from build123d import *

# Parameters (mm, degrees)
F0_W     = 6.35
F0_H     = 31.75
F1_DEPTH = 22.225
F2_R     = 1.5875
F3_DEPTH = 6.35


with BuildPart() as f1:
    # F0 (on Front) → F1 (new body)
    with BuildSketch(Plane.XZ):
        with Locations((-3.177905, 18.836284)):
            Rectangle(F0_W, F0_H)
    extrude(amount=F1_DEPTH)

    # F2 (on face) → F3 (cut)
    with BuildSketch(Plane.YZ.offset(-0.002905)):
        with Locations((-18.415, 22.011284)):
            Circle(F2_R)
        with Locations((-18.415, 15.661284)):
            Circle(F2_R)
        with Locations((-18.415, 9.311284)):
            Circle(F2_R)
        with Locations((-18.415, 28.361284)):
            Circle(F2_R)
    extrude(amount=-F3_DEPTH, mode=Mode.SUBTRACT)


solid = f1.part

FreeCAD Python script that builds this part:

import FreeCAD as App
import Part
import Sketcher

V = App.Vector
Q = App.Units.Quantity

doc = App.newDocument("Part")
body = doc.addObject("PartDesign::Body", "Body")

# Sketch on XZ plane
sketch1 = body.newObject("Sketcher::SketchObject", "Sketch")
sketch1.AttachmentSupport = (doc.getObject("XZ_Plane"), [""])
sketch1.MapMode = "FlatFace"
sketch1.addGeometry([
    Part.LineSegment(V(-6, 35, 0), V(-6, 3, 0)),
    Part.LineSegment(V(-6, 3, 0), V(0, 3, 0)),
    Part.LineSegment(V(0, 3, 0), V(0, 35, 0)),
    Part.LineSegment(V(0, 35, 0), V(-6, 35, 0)),
], False)
sketch1.addConstraint([
    Sketcher.Constraint("Coincident", 0, 2, 1, 1),
    Sketcher.Constraint("Coincident", 1, 2, 2, 1),
    Sketcher.Constraint("Coincident", 2, 2, 3, 1),
    Sketcher.Constraint("Coincident", 3, 2, 0, 1),
    Sketcher.Constraint("Vertical", 0),
    Sketcher.Constraint("Horizontal", 1),
    Sketcher.Constraint("Vertical", 2),
    Sketcher.Constraint("Horizontal", 3),
    Sketcher.Constraint("DistanceX", 1, 1, 1, 2, Q("0.25 in")),
    Sketcher.Constraint("DistanceY", 0, 2, 0, 1, Q("1.25 in")),
    Sketcher.Constraint("DistanceX", 0, 2, -1, 1, Q("6.352905 mm")),
    Sketcher.Constraint("DistanceY", -1, 1, 0, 2, Q("2.961284 mm")),
])
pad1 = body.newObject("PartDesign::Pad", "Pad")
pad1.Profile = sketch1
pad1.Length = Q("0.875 in")

# Sketch on YZ plane
sketch2 = body.newObject("Sketcher::SketchObject", "Sketch001")
sketch2.AttachmentSupport = (doc.getObject("YZ_Plane"), [""])
sketch2.MapMode = "FlatFace"
sketch2.AttachmentOffset = App.Placement(V(0, 0, -0.002905), App.Rotation())
sketch2.addGeometry([
    Part.Circle(V(-18.4, 22, 0), V(0, 0, 1), 1.6),
    Part.Circle(V(-18.4, 15.7, 0), V(0, 0, 1), 1.6),
    Part.Circle(V(-18.4, 9.3, 0), V(0, 0, 1), 1.6),
    Part.Circle(V(-18.4, 28.4, 0), V(0, 0, 1), 1.6),
], False)
sketch2.addConstraint([
    Sketcher.Constraint("Equal", 0, 1),
    Sketcher.Constraint("Equal", 1, 2),
    Sketcher.Constraint("Equal", 2, 3),
    Sketcher.Constraint("Vertical", 0, 3, 1, 3),
    Sketcher.Constraint("Vertical", 1, 3, 2, 3),
    Sketcher.Constraint("Vertical", 2, 3, 3, 3),
    Sketcher.Constraint("Diameter", 0, Q("0.125 in")),
    Sketcher.Constraint("DistanceY", 2, 3, 0, 3, Q("0.5 in")),
    Sketcher.Constraint("DistanceY", 1, 3, 3, 3, Q("0.5 in")),
    Sketcher.Constraint("DistanceY", 1, 3, 0, 3, Q("0.25 in")),
    Sketcher.Constraint("DistanceX", 0, 3, -1, 1, Q("0.725 in")),
    Sketcher.Constraint("DistanceY", -1, 1, 0, 3, Q("22.011284 mm")),
])
pocket1 = body.newObject("PartDesign::Pocket", "Pocket")
pocket1.Profile = sketch2
pocket1.Length = Q("0.25 in")

doc.recompute()
